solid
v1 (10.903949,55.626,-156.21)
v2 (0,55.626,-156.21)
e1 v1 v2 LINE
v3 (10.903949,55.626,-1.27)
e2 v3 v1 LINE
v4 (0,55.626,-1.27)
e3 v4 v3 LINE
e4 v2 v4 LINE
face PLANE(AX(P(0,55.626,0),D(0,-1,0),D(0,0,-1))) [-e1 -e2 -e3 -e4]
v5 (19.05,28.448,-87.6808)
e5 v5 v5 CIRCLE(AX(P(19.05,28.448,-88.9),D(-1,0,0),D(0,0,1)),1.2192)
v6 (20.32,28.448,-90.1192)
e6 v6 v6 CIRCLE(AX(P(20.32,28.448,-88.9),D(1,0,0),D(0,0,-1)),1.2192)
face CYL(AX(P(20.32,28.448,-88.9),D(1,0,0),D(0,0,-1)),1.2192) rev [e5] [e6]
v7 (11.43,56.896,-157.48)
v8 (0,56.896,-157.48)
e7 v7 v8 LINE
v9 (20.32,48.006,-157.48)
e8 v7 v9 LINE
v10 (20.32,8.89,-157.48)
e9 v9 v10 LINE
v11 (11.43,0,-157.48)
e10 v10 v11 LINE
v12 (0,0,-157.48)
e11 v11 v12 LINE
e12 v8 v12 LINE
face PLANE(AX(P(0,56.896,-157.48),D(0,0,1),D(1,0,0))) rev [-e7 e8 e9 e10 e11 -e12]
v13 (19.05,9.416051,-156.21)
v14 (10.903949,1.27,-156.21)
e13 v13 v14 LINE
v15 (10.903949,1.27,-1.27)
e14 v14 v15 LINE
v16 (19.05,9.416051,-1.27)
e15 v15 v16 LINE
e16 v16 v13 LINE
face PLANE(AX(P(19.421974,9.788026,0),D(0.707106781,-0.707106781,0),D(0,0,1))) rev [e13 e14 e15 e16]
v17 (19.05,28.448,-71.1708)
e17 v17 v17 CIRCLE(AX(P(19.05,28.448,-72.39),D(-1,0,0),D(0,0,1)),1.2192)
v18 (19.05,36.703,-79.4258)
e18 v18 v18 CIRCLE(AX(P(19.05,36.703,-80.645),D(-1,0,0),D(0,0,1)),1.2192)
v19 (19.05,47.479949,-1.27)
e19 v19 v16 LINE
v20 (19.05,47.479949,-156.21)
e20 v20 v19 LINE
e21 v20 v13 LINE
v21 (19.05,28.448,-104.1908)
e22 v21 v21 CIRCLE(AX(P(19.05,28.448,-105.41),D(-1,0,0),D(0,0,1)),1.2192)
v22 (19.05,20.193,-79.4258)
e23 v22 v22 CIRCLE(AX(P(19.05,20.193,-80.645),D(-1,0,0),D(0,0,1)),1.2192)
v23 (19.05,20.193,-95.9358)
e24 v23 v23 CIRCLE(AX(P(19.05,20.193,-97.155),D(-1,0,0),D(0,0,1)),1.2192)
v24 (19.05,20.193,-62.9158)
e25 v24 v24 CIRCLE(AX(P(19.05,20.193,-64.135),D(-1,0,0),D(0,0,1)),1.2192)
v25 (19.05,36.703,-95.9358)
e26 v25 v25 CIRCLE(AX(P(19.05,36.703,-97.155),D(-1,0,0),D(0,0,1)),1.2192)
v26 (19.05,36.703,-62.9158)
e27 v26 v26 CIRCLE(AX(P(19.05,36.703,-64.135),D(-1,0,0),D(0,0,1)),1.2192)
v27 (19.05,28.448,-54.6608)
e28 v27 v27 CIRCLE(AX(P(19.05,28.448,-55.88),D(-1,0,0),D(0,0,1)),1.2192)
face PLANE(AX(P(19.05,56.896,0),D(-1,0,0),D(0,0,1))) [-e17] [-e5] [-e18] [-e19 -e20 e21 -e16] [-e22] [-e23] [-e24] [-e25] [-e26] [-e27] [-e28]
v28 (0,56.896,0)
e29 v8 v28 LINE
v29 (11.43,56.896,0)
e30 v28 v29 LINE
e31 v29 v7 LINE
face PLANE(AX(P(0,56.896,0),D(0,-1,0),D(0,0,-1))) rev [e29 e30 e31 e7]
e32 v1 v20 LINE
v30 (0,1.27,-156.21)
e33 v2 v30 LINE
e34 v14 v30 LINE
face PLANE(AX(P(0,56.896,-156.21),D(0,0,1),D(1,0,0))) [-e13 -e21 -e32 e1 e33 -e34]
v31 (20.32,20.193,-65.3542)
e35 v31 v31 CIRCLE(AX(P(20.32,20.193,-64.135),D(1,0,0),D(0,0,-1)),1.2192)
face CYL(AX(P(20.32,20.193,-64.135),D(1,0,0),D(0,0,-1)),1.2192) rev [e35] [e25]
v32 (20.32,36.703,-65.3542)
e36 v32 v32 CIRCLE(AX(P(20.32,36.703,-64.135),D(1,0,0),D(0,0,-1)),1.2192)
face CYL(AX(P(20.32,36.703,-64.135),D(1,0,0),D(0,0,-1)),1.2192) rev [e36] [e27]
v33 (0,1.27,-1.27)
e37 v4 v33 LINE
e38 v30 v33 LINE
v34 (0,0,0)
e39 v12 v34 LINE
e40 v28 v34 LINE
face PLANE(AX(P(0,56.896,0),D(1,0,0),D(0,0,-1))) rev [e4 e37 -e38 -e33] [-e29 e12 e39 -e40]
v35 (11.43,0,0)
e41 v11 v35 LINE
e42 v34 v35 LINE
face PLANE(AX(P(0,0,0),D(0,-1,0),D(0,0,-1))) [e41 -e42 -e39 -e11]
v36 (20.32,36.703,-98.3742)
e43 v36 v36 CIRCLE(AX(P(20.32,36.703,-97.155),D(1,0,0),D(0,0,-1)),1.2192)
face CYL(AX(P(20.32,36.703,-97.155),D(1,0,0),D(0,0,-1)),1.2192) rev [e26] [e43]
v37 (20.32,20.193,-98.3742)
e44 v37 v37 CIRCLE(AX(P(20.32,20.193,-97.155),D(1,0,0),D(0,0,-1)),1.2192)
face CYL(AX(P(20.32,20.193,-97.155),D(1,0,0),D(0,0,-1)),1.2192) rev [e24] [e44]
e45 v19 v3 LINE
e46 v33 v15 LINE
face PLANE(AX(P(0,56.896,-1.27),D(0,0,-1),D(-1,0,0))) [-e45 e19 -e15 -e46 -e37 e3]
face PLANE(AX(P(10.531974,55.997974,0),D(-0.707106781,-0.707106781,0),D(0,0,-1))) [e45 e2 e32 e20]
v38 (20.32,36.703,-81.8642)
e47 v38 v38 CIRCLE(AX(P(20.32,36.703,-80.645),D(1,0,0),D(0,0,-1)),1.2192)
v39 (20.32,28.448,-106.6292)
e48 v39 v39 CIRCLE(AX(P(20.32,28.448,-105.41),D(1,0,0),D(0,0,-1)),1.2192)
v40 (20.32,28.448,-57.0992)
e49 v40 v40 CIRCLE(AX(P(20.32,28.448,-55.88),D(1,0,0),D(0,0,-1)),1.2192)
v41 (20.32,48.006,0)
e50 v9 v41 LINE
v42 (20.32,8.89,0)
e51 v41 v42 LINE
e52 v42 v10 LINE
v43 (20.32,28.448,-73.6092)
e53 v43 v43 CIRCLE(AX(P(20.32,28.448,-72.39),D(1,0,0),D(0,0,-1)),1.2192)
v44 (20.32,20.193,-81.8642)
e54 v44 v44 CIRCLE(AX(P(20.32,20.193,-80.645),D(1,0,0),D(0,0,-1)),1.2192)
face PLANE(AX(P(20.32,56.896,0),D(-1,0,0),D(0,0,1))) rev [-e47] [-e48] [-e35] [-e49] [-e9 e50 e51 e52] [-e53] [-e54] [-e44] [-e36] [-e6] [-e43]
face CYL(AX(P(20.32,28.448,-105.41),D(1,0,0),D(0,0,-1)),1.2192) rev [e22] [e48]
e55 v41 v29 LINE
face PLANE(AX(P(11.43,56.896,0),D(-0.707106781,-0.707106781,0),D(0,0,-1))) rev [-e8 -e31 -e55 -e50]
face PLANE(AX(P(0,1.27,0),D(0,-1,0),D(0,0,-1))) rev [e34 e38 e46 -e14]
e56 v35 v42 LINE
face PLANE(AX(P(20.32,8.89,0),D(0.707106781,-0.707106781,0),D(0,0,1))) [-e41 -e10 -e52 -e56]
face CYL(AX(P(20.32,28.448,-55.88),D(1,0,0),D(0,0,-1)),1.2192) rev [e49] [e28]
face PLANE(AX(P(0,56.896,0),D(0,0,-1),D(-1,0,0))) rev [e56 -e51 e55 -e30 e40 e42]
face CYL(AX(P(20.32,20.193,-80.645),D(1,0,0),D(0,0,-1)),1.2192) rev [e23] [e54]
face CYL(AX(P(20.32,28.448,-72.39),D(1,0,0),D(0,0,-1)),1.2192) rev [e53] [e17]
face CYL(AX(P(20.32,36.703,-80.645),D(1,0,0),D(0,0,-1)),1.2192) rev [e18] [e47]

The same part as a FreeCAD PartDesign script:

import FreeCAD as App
import Part
import Sketcher

V = App.Vector
Q = App.Units.Quantity


def edges_at(feature, points):
    """Names of the edges that pass closest to the given points."""
    edges = feature.Shape.Edges
    near = lambda p: min(range(len(edges)), key=lambda i: edges[i].distToShape(Part.Vertex(*p))[0])
    return sorted({f"Edge{near(p) + 1}" for p in points})


def faces_at(feature, points):
    """Names of the faces that lie closest to the given points."""
    faces = feature.Shape.Faces
    near = lambda p: min(range(len(faces)), key=lambda i: faces[i].distToShape(Part.Vertex(*p))[0])
    return sorted({f"Face{near(p) + 1}" for p in points})


def add_polygon(sketch, points):
    """Adds a closed chain of lines whose ends are joined by coincident constraints."""
    first, n = sketch.GeometryCount, len(points)
    for a, b in zip(points, points[1:] + points[:1]):
        sketch.addGeometry(Part.LineSegment(App.Vector(*a, 0), App.Vector(*b, 0)), False)
    for i in range(n):
        sketch.addConstraint(Sketcher.Constraint("Coincident", first + i, 2, first + (i + 1) % n, 1))

doc = App.newDocument("Part")
params = doc.addObject("Spreadsheet::Sheet", "Params")
for row, (alias, value) in enumerate([
    ("sketch1_width", "0.8 in"),
    ("sketch1_height", "6.2 in"),
    ("pad1_length", "2.24 in"),
    ("chamfer_size", "0.35 in"),
    ("thickness_wall", "0.05 in"),
    ("sketch2_diameter", "0.096 in"),
    ("hole_diameter", "0.096 in"),
    ("hole_depth", "0.3 in"),
], start=1):
    params.set(f"A{row}", alias)
    params.set(f"B{row}", "=" + value)
    params.setAlias(f"B{row}", alias)

body = doc.addObject("PartDesign::Body", "Body")

# Sketch on XZ plane
sketch1 = body.newObject("Sketcher::SketchObject", "Sketch")
sketch1.AttachmentSupport = (doc.getObject("XZ_Plane"), [""])
sketch1.MapMode = "FlatFace"
add_polygon(sketch1, [(0, -157.48), (0, 0), (20.32, 0), (20.32, -157.48)])  # lines 0-3
sketch1.addConstraint([
    Sketcher.Constraint("Vertical", 0),
    Sketcher.Constraint("Horizontal", 1),
    Sketcher.Constraint("Vertical", 2),
    Sketcher.Constraint("Horizontal", 3),
    Sketcher.Constraint("Coincident", 0, 2, -1, 1),
    Sketcher.Constraint("DistanceX", 1, 1, 1, 2, Q("0.8 in")),
    Sketcher.Constraint("DistanceY", 0, 1, 0, 2, Q("6.2 in")),
])
sketch1.setExpression("Constraints[9]", "Params.sketch1_width")
sketch1.setExpression("Constraints[10]", "Params.sketch1_height")
pad1 = body.newObject("PartDesign::Pad", "Pad")
pad1.Profile = sketch1
pad1.setExpression("Length", "Params.pad1_length")
pad1.Reversed = True
doc.recompute()

chamfer = body.newObject("PartDesign::Chamfer", "Chamfer")
chamfer.Base = (pad1, edges_at(pad1, [(20.32, 56.896, -78.74), (20.32, 0, -78.74)]))
chamfer.setExpression("Size", "Params.chamfer_size")
doc.recompute()

thickness = body.newObject("PartDesign::Thickness", "Thickness")
thickness.Base = (chamfer, faces_at(chamfer, [(0, 28.448, -78.74)]))
thickness.setExpression("Value", "Params.thickness_wall")
thickness.Reversed = True
thickness.Join = "Intersection"

# Sketch on YZ plane
sketch2 = body.newObject("Sketcher::SketchObject", "Sketch001")
sketch2.AttachmentSupport = (doc.getObject("YZ_Plane"), [""])
sketch2.MapMode = "FlatFace"
sketch2.AttachmentOffset = App.Placement(V(0, 0, 0.8 * 25.4), App.Rotation())
sketch2.addGeometry([
    Part.Circle(V(28.448, -55.88, 0), V(0, 0, 1), 1.2192),  # 0
    Part.Circle(V(28.448, -72.39, 0), V(0, 0, 1), 1.2192),  # 1
    Part.Circle(V(36.703, -80.645, 0), V(0, 0, 1), 1.2192),  # 2
    Part.Circle(V(20.193, -80.645, 0), V(0, 0, 1), 1.2192),  # 3
    Part.Circle(V(28.448, -88.9, 0), V(0, 0, 1), 1.2192),  # 4
    Part.Circle(V(28.448, -105.41, 0), V(0, 0, 1), 1.2192),  # 5
    Part.Circle(V(36.703, -97.155, 0), V(0, 0, 1), 1.2192),  # 6
    Part.Circle(V(20.193, -97.155, 0), V(0, 0, 1), 1.2192),  # 7
    Part.Circle(V(36.703, -64.135, 0), V(0, 0, 1), 1.2192),  # 8
    Part.Circle(V(20.193, -64.135, 0), V(0, 0, 1), 1.2192),  # 9
], False)
sketch2.addConstraint([
    Sketcher.Constraint("Equal", 0, 1),
    Sketcher.Constraint("Equal", 1, 2),
    Sketcher.Constraint("Equal", 2, 3),
    Sketcher.Constraint("Equal", 3, 4),
    Sketcher.Constraint("Equal", 4, 5),
    Sketcher.Constraint("Equal", 5, 6),
    Sketcher.Constraint("Equal", 6, 7),
    Sketcher.Constraint("Equal", 7, 8),
    Sketcher.Constraint("Equal", 8, 9),
    Sketcher.Constraint("Horizontal", 2, 3, 3, 3),
    Sketcher.Constraint("Horizontal", 6, 3, 7, 3),
    Sketcher.Constraint("Horizontal", 8, 3, 9, 3),
    Sketcher.Constraint("Vertical", 0, 3, 1, 3),
    Sketcher.Constraint("Vertical", 1, 3, 4, 3),
    Sketcher.Constraint("Vertical", 4, 3, 5, 3),
    Sketcher.Constraint("Vertical", 2, 3, 6, 3),
    Sketcher.Constraint("Vertical", 3, 3, 7, 3),
    Sketcher.Constraint("Vertical", 6, 3, 8, 3),
    Sketcher.Constraint("Vertical", 7, 3, 9, 3),
    Sketcher.Constraint("Diameter", 0, Q("0.096 in")),
    Sketcher.Constraint("DistanceY", 0, 3, -1, 1, Q("2.2 in")),
    Sketcher.Constraint("DistanceY", 4, 3, -1, 1, Q("3.5 in")),
    Sketcher.Constraint("DistanceY", 5, 3, 1, 3, Q("1.3 in")),
    Sketcher.Constraint("DistanceX", -1, 1, 0, 3, Q("1.12 in")),
    Sketcher.Constraint("DistanceY", 1, 3, -1, 1, Q("2.85 in")),
    Sketcher.Constraint("DistanceX", 3, 3, 2, 3, Q("0.65 in")),
    Sketcher.Constraint("DistanceY", 6, 3, 2, 3, Q("0.65 in")),
    Sketcher.Constraint("DistanceY", 2, 3, 8, 3, Q("0.65 in")),
    Sketcher.Constraint("DistanceX", -1, 1, 2, 3, Q("1.445 in")),
    Sketcher.Constraint("DistanceY", 2, 3, -1, 1, Q("3.175 in")),
])
sketch2.setExpression("Constraints[19]", "Params.sketch2_diameter")
doc.recompute()
hole = body.newObject("PartDesign::Hole", "Hole")
hole.Profile = sketch2
hole.ThreadType = "None"
hole.setExpression("Diameter", "Params.hole_diameter")
hole.DepthType = "Dimension"
hole.setExpression("Depth", "Params.hole_depth")
hole.DrillPoint = "Angled"
hole.DrillPointAngle = 118

doc.recompute()
